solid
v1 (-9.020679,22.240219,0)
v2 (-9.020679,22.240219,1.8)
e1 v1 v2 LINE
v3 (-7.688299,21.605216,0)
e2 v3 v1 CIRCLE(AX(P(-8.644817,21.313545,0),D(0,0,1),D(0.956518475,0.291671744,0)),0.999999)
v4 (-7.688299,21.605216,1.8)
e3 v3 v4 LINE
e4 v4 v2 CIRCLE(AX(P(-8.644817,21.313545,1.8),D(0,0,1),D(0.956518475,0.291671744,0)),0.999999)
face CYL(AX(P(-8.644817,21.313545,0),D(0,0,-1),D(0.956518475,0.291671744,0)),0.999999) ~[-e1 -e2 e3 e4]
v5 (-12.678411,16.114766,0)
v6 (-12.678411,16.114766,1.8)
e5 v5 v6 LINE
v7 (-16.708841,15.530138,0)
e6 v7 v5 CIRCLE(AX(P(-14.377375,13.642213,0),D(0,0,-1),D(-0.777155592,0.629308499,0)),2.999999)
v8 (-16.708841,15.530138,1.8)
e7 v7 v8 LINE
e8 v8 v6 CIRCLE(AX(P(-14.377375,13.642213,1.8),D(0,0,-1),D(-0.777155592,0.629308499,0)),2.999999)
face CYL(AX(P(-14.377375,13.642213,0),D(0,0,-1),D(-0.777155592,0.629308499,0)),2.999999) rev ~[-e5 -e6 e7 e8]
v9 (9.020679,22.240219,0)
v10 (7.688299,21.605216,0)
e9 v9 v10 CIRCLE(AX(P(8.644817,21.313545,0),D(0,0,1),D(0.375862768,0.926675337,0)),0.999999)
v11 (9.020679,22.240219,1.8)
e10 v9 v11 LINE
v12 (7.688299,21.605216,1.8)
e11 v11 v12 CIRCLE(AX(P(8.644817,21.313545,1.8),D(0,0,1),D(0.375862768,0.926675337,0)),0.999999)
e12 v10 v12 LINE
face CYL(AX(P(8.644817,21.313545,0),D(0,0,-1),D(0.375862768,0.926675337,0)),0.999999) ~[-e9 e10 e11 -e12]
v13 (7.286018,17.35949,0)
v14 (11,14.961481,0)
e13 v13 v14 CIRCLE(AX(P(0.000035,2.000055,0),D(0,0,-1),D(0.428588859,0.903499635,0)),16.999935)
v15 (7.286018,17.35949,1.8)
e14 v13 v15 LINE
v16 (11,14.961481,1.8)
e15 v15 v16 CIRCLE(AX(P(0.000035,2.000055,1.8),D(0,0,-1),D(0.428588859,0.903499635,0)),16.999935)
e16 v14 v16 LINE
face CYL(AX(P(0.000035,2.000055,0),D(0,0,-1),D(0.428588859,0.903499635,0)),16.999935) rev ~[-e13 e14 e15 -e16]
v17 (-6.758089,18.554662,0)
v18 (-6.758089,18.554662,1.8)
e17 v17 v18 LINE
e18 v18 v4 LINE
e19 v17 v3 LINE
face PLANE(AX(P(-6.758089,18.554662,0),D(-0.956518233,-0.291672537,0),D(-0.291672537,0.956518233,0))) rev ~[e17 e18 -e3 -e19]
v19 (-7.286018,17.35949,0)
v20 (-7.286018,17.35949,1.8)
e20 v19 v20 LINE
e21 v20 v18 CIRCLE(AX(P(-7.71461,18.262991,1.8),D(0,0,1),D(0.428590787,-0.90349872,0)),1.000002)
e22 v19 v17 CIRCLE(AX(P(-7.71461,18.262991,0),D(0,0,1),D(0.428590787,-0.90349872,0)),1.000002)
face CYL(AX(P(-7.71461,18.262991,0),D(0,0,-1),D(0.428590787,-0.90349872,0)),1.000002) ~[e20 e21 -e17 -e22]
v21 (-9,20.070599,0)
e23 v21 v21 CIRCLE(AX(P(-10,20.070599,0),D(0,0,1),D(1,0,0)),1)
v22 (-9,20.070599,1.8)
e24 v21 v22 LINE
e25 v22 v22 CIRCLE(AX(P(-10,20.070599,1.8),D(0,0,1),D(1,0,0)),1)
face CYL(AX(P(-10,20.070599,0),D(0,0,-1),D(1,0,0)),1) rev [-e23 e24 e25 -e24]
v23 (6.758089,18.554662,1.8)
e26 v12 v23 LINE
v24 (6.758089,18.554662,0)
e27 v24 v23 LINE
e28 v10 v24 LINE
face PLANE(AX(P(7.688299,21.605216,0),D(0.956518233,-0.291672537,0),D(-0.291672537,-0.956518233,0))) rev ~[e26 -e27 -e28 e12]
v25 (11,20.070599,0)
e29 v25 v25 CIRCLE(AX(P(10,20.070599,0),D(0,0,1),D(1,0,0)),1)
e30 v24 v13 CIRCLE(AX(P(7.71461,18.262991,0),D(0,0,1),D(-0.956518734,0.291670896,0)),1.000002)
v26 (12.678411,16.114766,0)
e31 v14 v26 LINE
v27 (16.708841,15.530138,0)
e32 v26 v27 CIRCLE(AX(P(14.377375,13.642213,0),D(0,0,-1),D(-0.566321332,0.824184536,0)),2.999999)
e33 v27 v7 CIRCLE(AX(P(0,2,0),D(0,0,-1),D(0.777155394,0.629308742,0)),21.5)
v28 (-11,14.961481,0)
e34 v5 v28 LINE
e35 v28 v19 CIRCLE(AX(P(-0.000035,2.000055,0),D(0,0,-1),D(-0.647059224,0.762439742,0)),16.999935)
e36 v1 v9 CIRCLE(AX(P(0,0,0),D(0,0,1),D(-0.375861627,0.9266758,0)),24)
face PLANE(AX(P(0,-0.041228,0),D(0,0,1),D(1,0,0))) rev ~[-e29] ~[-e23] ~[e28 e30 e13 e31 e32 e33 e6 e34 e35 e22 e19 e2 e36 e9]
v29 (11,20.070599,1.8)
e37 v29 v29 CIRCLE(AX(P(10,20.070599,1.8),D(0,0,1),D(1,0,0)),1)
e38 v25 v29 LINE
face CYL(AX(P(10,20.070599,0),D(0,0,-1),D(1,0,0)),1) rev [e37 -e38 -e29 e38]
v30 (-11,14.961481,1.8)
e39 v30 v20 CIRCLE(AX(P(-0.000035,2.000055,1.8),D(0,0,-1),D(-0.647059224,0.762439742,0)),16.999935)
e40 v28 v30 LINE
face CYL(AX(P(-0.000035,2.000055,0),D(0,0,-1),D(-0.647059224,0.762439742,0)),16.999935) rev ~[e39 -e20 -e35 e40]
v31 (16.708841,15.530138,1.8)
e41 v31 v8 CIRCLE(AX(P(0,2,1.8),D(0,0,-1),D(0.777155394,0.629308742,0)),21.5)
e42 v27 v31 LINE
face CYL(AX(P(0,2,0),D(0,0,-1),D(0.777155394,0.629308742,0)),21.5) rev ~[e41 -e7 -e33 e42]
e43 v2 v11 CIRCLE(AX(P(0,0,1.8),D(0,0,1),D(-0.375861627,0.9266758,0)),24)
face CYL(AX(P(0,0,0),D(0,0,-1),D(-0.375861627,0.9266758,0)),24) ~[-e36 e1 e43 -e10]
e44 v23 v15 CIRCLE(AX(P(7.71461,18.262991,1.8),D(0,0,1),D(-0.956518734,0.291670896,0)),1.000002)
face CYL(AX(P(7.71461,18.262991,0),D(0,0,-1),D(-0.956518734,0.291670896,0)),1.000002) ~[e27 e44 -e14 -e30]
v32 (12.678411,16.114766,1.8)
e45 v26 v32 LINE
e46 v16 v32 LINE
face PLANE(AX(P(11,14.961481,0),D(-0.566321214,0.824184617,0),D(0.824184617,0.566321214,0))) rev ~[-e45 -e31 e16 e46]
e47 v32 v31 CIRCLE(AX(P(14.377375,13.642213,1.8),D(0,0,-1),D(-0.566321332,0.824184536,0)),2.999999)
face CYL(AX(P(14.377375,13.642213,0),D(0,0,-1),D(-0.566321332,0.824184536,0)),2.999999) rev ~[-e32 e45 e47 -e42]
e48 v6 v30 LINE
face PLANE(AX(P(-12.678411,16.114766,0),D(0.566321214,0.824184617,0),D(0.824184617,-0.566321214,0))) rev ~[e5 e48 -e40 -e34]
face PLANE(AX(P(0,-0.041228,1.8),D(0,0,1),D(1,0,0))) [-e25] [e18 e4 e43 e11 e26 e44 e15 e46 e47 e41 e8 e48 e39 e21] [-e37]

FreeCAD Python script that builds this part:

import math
import FreeCAD as App
import Part
import Sketcher

doc = App.newDocument("Part")
body = doc.addObject("PartDesign::Body", "Body")

sketch1 = body.newObject("Sketcher::SketchObject", "Sketch")
sketch1.AttachmentSupport = (doc.getObject("XY_Plane"), [""])
sketch1.MapMode = "FlatFace"
sketch1.addGeometry(Part.ArcOfCircle(Part.Circle(App.Vector(-8.644817, 21.313545, 0), App.Vector(0, 0, 1), 0.999999), math.radians(16.958067), math.radians(112.077647)), False)
sketch1.addGeometry(Part.ArcOfCircle(Part.Circle(App.Vector(0, 0, 0), App.Vector(0, 0, 1), 24), math.radians(112.077577), math.radians(427.922423)), False)
sketch1.addGeometry(Part.ArcOfCircle(Part.Circle(App.Vector(8.644817, 21.313545, 0), App.Vector(0, 0, 1), 0.999999), math.radians(67.922353), math.radians(163.041933)), False)
sketch1.addGeometry(Part.LineSegment(App.Vector(7.688299, 21.605216, 0), App.Vector(6.758089, 18.554662, 0)), False)
sketch1.addGeometry(Part.ArcOfCircle(Part.Circle(App.Vector(7.71461, 18.262991, 0), App.Vector(0, 0, 1), 1.000002), math.radians(163.041983), math.radians(244.621839)), False)
sketch1.addGeometry(Part.ArcOfCircle(Part.Circle(App.Vector(0.000035, 2.000055, 0), App.Vector(0, 0, 1), 16.999935), math.radians(49.679755), math.radians(64.621961)), False)
sketch1.addGeometry(Part.LineSegment(App.Vector(11, 14.961481, 0), App.Vector(12.678411, 16.114766, 0)), False)
sketch1.addGeometry(Part.ArcOfCircle(Part.Circle(App.Vector(14.377375, 13.642213, 0), App.Vector(0, 0, 1), 2.999999), math.radians(38.999123), math.radians(124.494097)), False)
sketch1.addGeometry(Part.ArcOfCircle(Part.Circle(App.Vector(0, 2, 0), App.Vector(0, 0, 1), 21.5), math.radians(141.000859), math.radians(398.999141)), False)
sketch1.addGeometry(Part.ArcOfCircle(Part.Circle(App.Vector(-14.377375, 13.642213, 0), App.Vector(0, 0, 1), 2.999999), math.radians(55.505903), math.radians(141.000877)), False)
sketch1.addGeometry(Part.LineSegment(App.Vector(-12.678411, 16.114766, 0), App.Vector(-11, 14.961481, 0)), False)
sketch1.addGeometry(Part.ArcOfCircle(Part.Circle(App.Vector(-0.000035, 2.000055, 0), App.Vector(0, 0, 1), 16.999935), math.radians(115.378039), math.radians(130.320245)), False)
sketch1.addGeometry(Part.ArcOfCircle(Part.Circle(App.Vector(-7.71461, 18.262991, 0), App.Vector(0, 0, 1), 1.000002), math.radians(-64.621839), math.radians(16.958017)), False)
sketch1.addGeometry(Part.LineSegment(App.Vector(-6.758089, 18.554662, 0), App.Vector(-7.688299, 21.605216, 0)), False)
sketch1.addGeometry(Part.Circle(App.Vector(-10, 20.070599, 0), App.Vector(0, 0, 1), 1), False)
sketch1.addGeometry(Part.Circle(App.Vector(10, 20.070599, 0), App.Vector(0, 0, 1), 1), False)
sketch1.addConstraint(Sketcher.Constraint("Coincident", 0, 2, 1, 1))
sketch1.addConstraint(Sketcher.Constraint("Coincident", 1, 2, 2, 1))
sketch1.addConstraint(Sketcher.Constraint("Coincident", 2, 2, 3, 1))
sketch1.addConstraint(Sketcher.Constraint("Coincident", 3, 2, 4, 1))
sketch1.addConstraint(Sketcher.Constraint("Coincident", 4, 2, 5, 2))
sketch1.addConstraint(Sketcher.Constraint("Coincident", 5, 1, 6, 1))
sketch1.addConstraint(Sketcher.Constraint("Coincident", 6, 2, 7, 2))
sketch1.addConstraint(Sketcher.Constraint("Coincident", 7, 1, 8, 2))
sketch1.addConstraint(Sketcher.Constraint("Coincident", 8, 1, 9, 2))
sketch1.addConstraint(Sketcher.Constraint("Coincident", 9, 1, 10, 1))
sketch1.addConstraint(Sketcher.Constraint("Coincident", 10, 2, 11, 2))
sketch1.addConstraint(Sketcher.Constraint("Coincident", 11, 1, 12, 1))
sketch1.addConstraint(Sketcher.Constraint("Coincident", 12, 2, 13, 1))
sketch1.addConstraint(Sketcher.Constraint("Coincident", 13, 2, 0, 1))
sketch1.addConstraint(Sketcher.Constraint("Coincident", 1, 3, -1, 1))
sketch1.addConstraint(Sketcher.Constraint("PointOnObject", 8, 3, -2))
sketch1.addConstraint(Sketcher.Constraint("Diameter", 14, 2.0))
sketch1.addConstraint(Sketcher.Constraint("Diameter", 15, 2.0))
sketch1.addConstraint(Sketcher.Constraint("Radius", 0, 0.999999))
sketch1.addConstraint(Sketcher.Constraint("Radius", 1, 24.0))
sketch1.addConstraint(Sketcher.Constraint("Radius", 2, 0.999999))
sketch1.addConstraint(Sketcher.Constraint("Radius", 4, 1.000002))
sketch1.addConstraint(Sketcher.Constraint("Radius", 7, 2.999999))
sketch1.addConstraint(Sketcher.Constraint("Radius", 9, 2.999999))
sketch1.addConstraint(Sketcher.Constraint("Radius", 12, 1.000002))
sketch1.addConstraint(Sketcher.Constraint("Radius", 8, 21.5))
sketch1.addConstraint(Sketcher.Constraint("DistanceY", -1, 1, 8, 3, 2.0))
sketch1.addConstraint(Sketcher.Constraint("DistanceX", 14, 3, -1, 1, 10.0))
sketch1.addConstraint(Sketcher.Constraint("DistanceX", -1, 1, 15, 3, 10.0))
sketch1.addConstraint(Sketcher.Constraint("DistanceX", -1, 1, 5, 1, 11.0))
sketch1.addConstraint(Sketcher.Constraint("DistanceX", 10, 2, -1, 1, 11.0))
sketch1.addConstraint(Sketcher.Constraint("Radius", 5, 16.999935))
sketch1.addConstraint(Sketcher.Constraint("Radius", 11, 16.999935))
sketch1.addConstraint(Sketcher.Constraint("DistanceY", -1, 1, 14, 3, 20.070599))
sketch1.addConstraint(Sketcher.Constraint("DistanceY", -1, 1, 15, 3, 20.070599))
sketch1.addConstraint(Sketcher.Constraint("DistanceX", -1, 1, 2, 2, 7.688299))
sketch1.addConstraint(Sketcher.Constraint("DistanceX", 13, 2, -1, 1, 7.688299))
sketch1.addConstraint(Sketcher.Constraint("DistanceY", 4, 2, 4, 3, 0.903501))
sketch1.addConstraint(Sketcher.Constraint("DistanceX", 4, 2, 2, 3, 1.358799))
sketch1.addConstraint(Sketcher.Constraint("DistanceX", 4, 3, 6, 2, 4.963801))
sketch1.addConstraint(Sketcher.Constraint("DistanceX", 9, 1, 12, 3, 4.963801))
sketch1.addConstraint(Sketcher.Constraint("DistanceY", 11, 1, 12, 3, 0.903501))
sketch1.addConstraint(Sketcher.Constraint("DistanceX", 0, 3, 11, 1, 1.358799))
sketch1.addConstraint(Sketcher.Constraint("Distance", 6, 2.03645))
sketch1.addConstraint(Sketcher.Constraint("Distance", 10, 2.03645))
sketch1.addConstraint(Sketcher.Constraint("DistanceX", -1, 1, 4, 3, 7.71461))
sketch1.addConstraint(Sketcher.Constraint("DistanceY", -1, 1, 4, 3, 18.262991))
sketch1.addConstraint(Sketcher.Constraint("DistanceX", 12, 3, -1, 1, 7.71461))
sketch1.addConstraint(Sketcher.Constraint("DistanceY", -1, 1, 12, 3, 18.262991))
sketch1.addConstraint(Sketcher.Constraint("DistanceX", 0, 2, -1, 1, 9.020679))
sketch1.addConstraint(Sketcher.Constraint("DistanceX", -1, 1, 1, 2, 9.020679))
sketch1.addConstraint(Sketcher.Constraint("DistanceX", -1, 1, 3, 2, 6.758089))
sketch1.addConstraint(Sketcher.Constraint("DistanceY", -1, 1, 5, 1, 14.961481))
sketch1.addConstraint(Sketcher.Constraint("DistanceX", -1, 1, 7, 1, 16.708841))
sketch1.addConstraint(Sketcher.Constraint("DistanceX", 8, 1, -1, 1, 16.708841))
sketch1.addConstraint(Sketcher.Constraint("DistanceY", -1, 1, 10, 2, 14.961481))
sketch1.addConstraint(Sketcher.Constraint("DistanceX", 12, 2, -1, 1, 6.758089))
pad1 = body.newObject("PartDesign::Pad", "Pad")
pad1.Profile = sketch1
pad1.Length = 1.8

doc.recompute()
